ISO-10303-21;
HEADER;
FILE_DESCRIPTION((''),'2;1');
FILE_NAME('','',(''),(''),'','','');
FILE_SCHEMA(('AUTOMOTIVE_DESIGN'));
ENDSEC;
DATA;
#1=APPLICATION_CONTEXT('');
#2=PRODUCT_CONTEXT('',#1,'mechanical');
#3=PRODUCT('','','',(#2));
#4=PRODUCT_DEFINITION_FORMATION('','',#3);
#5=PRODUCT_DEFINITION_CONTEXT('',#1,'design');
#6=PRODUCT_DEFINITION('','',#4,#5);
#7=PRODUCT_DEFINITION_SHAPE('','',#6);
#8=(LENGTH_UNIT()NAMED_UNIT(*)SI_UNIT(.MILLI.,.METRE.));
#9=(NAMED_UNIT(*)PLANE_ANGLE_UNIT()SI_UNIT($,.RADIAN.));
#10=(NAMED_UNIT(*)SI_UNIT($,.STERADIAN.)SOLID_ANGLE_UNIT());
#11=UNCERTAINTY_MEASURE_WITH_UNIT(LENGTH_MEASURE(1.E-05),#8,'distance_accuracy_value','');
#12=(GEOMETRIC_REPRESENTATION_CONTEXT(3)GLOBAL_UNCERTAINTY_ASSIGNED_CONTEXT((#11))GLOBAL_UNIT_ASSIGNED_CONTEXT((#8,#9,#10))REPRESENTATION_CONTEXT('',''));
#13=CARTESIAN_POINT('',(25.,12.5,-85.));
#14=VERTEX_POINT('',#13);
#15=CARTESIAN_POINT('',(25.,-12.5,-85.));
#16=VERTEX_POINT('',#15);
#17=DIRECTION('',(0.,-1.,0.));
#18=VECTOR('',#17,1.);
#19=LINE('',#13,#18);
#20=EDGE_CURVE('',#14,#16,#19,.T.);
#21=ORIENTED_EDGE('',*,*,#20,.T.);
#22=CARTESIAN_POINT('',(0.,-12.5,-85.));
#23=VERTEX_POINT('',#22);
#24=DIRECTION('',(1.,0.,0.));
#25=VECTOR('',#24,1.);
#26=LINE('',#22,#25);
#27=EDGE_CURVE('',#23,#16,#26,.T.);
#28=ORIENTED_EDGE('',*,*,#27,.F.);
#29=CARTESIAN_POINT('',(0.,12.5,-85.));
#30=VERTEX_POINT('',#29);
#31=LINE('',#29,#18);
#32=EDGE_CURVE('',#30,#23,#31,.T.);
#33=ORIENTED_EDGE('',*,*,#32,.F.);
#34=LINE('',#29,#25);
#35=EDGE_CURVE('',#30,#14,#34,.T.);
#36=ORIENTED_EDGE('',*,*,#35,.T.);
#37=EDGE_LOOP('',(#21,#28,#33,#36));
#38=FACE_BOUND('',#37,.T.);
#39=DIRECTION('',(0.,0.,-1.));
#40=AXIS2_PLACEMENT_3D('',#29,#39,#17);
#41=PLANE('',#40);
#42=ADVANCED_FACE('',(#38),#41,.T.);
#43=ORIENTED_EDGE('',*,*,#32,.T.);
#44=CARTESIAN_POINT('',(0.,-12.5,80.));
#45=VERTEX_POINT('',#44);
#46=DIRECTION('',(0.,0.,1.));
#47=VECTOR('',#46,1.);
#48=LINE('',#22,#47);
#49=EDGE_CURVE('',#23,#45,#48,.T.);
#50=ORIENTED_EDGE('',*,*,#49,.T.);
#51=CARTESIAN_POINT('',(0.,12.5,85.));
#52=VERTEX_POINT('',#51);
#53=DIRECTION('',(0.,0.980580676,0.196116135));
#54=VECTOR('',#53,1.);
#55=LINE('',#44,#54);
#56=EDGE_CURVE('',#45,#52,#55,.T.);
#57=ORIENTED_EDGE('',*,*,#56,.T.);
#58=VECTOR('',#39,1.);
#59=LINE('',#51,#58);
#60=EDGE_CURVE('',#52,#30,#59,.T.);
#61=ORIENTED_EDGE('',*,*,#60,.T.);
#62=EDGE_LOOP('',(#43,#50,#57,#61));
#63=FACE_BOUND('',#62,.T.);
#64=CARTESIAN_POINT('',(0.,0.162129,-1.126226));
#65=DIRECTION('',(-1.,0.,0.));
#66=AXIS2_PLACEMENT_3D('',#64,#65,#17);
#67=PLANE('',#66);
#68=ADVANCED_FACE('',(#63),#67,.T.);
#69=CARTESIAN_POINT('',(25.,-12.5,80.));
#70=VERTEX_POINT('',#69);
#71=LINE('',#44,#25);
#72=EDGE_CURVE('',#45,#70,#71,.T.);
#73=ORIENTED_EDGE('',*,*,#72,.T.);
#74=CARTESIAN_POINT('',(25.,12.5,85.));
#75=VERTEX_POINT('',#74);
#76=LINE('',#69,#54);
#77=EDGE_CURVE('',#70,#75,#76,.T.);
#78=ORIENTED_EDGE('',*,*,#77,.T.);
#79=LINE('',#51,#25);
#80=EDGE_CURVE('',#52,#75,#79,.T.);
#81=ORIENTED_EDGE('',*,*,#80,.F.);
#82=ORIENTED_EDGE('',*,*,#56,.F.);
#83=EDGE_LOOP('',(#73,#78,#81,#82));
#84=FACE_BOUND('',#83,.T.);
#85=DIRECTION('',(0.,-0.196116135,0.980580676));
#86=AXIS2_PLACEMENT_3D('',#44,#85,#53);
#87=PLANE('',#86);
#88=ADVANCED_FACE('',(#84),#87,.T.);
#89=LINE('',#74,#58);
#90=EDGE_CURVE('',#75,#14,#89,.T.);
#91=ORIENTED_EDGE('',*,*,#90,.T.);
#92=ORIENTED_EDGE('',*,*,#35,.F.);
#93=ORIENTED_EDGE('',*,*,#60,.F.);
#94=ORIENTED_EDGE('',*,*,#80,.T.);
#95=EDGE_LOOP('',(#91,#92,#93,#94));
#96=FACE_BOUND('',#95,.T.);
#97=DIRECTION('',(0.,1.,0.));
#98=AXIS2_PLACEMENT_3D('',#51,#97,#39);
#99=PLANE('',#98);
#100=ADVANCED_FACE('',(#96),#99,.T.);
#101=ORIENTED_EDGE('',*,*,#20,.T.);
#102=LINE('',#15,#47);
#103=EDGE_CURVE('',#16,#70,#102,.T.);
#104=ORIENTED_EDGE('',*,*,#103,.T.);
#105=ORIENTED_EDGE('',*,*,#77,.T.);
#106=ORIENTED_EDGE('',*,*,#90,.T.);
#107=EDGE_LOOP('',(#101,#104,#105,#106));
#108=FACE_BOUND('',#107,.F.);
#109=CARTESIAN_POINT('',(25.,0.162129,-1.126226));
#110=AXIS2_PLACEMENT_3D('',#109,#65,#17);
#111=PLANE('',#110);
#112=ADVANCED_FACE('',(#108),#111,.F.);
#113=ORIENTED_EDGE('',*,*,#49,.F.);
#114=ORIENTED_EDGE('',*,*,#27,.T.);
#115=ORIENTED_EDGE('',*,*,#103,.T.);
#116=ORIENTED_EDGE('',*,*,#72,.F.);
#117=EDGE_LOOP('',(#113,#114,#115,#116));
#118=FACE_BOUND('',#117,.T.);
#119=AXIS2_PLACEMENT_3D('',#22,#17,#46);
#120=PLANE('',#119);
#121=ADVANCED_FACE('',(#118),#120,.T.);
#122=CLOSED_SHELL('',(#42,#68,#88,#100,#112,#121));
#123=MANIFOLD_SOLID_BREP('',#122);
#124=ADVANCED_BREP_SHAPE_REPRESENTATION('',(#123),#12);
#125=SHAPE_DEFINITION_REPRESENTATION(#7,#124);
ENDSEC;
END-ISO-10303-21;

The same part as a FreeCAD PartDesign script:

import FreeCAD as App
import Part
import Sketcher

doc = App.newDocument("Part")
body = doc.addObject("PartDesign::Body", "Body")

# Sketch on YZ plane
sketch1 = doc.addObject("Sketcher::SketchObject", "Sketch")
body.addObject(sketch1)
sketch1.AttachmentSupport = (doc.YZ_Plane, [""])
sketch1.MapMode = "FlatFace"
sketch1.addGeometry(Part.LineSegment(App.Vector(12, -85, 0), App.Vector(12, 85, 0)), False)
sketch1.addGeometry(Part.LineSegment(App.Vector(12, 85, 0), App.Vector(-12, 80, 0)), False)
sketch1.addGeometry(Part.LineSegment(App.Vector(-12, 80, 0), App.Vector(-12, -85, 0)), False)
sketch1.addGeometry(Part.LineSegment(App.Vector(-12, -85, 0), App.Vector(12, -85, 0)), False)
sketch1.addConstraint(Sketcher.Constraint("Coincident", 0, 2, 1, 1))
sketch1.addConstraint(Sketcher.Constraint("Coincident", 1, 2, 2, 1))
sketch1.addConstraint(Sketcher.Constraint("Coincident", 2, 2, 3, 1))
sketch1.addConstraint(Sketcher.Constraint("Coincident", 3, 2, 0, 1))
sketch1.addConstraint(Sketcher.Constraint("Vertical", 0))
sketch1.addConstraint(Sketcher.Constraint("Vertical", 2))
sketch1.addConstraint(Sketcher.Constraint("Horizontal", 3))
sketch1.addConstraint(Sketcher.Constraint("Symmetric", 0, 2, 2, 2, -1, 1))
sketch1.addConstraint(Sketcher.Constraint("DistanceX", 3, 1, 3, 2, 25.0))
sketch1.addConstraint(Sketcher.Constraint("DistanceY", 0, 1, 0, 2, 170.0))
sketch1.addConstraint(Sketcher.Constraint("DistanceY", 2, 2, 2, 1, 165.0))
pad1 = doc.addObject("PartDesign::Pad", "Pad")
body.addObject(pad1)
pad1.Profile = sketch1
pad1.Length = 25

doc.recompute()
